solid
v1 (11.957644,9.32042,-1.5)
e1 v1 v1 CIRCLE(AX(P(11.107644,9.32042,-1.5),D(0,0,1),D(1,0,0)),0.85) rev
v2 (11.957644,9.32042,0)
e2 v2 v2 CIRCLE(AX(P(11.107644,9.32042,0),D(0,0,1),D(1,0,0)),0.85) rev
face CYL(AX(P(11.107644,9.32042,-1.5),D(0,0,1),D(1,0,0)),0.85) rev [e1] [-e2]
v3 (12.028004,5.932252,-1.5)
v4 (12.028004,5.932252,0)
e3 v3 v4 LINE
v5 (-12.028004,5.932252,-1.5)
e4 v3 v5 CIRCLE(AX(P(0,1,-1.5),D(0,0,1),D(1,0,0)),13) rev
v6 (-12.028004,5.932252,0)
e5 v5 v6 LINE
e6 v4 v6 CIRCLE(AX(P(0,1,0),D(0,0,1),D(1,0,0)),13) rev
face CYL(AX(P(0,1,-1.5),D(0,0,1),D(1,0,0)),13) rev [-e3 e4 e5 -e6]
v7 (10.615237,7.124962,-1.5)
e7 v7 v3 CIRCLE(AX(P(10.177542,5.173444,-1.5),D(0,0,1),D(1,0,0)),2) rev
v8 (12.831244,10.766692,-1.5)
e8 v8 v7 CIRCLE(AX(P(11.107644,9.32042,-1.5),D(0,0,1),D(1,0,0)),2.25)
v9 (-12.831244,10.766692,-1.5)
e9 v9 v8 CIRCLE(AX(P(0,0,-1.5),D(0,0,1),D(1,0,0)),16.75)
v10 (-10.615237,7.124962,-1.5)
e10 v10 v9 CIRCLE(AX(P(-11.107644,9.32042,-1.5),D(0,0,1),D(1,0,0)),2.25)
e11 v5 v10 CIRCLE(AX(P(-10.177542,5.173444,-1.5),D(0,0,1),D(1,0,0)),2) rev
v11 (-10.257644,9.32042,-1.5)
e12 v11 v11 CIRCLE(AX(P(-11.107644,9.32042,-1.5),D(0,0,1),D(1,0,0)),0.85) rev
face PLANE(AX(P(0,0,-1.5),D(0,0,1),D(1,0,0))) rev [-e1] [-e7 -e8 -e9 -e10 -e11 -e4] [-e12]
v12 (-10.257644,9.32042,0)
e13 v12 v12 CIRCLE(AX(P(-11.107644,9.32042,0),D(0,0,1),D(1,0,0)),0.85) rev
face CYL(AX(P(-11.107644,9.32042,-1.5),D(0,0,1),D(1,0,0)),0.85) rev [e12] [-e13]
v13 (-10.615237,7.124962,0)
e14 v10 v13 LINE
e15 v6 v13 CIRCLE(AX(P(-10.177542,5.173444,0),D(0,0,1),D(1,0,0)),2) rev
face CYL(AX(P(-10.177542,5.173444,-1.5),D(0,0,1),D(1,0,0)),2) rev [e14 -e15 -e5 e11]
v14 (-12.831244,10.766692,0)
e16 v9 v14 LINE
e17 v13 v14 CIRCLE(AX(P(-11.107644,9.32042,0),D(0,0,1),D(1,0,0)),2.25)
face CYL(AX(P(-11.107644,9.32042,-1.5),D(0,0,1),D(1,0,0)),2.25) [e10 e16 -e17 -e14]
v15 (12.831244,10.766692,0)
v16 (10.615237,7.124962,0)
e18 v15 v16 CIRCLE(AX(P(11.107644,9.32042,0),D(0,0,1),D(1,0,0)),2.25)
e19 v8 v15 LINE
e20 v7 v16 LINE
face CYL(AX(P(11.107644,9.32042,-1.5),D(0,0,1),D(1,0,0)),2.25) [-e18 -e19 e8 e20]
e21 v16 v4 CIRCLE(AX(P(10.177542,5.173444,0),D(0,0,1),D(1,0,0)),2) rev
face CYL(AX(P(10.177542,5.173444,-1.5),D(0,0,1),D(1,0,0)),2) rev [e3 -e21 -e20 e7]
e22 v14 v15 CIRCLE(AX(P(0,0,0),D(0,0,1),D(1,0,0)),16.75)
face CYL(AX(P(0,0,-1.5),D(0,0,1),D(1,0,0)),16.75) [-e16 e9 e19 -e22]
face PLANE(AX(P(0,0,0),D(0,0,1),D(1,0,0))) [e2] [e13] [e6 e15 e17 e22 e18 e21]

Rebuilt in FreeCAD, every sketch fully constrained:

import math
import FreeCAD as App
import Part
import Sketcher
Q = App.Units.Quantity

doc = App.newDocument("Part")
body = doc.addObject("PartDesign::Body", "Body")

# Sketch on XY plane
sketch1 = body.newObject("Sketcher::SketchObject", "Sketch")
sketch1.AttachmentSupport = (doc.getObject("XY_Plane"), [""])
sketch1.MapMode = "FlatFace"
sketch1.addGeometry([
    Part.ArcOfCircle(Part.Circle(App.Vector(-10.2, 5.2, 0), App.Vector(0, 0, 1), 2), math.radians(103), math.radians(158)),  # 0
    Part.ArcOfCircle(Part.Circle(App.Vector(-11.1, 9.3, 0), App.Vector(0, 0, 1), 2.2), math.radians(-77), math.radians(140)),  # 1
    Part.ArcOfCircle(Part.Circle(App.Vector(0, 0, 0), App.Vector(0, 0, 1), 16.8), math.radians(140), math.radians(400)),  # 2
    Part.ArcOfCircle(Part.Circle(App.Vector(11.1, 9.3, 0), App.Vector(0, 0, 1), 2.2), math.radians(40), math.radians(257)),  # 3
    Part.ArcOfCircle(Part.Circle(App.Vector(10.2, 5.2, 0), App.Vector(0, 0, 1), 2), math.radians(22), math.radians(77)),  # 4
    Part.ArcOfCircle(Part.Circle(App.Vector(0, 1, 0), App.Vector(0, 0, 1), 13), math.radians(158), math.radians(382)),  # 5
    Part.Circle(App.Vector(-11.1, 9.3, 0), App.Vector(0, 0, 1), 0.8),  # 6
    Part.Circle(App.Vector(11.1, 9.3, 0), App.Vector(0, 0, 1), 0.8),  # 7
], False)
sketch1.addConstraint([
    Sketcher.Constraint("Tangent", 0, 1, 1, 1),
    Sketcher.Constraint("Tangent", 1, 2, 2, 1),
    Sketcher.Constraint("Tangent", 2, 2, 3, 1),
    Sketcher.Constraint("Tangent", 3, 2, 4, 2),
    Sketcher.Constraint("Tangent", 4, 1, 5, 2),
    Sketcher.Constraint("Tangent", 5, 1, 0, 2),
    Sketcher.Constraint("Coincident", 2, 3, -1, 1),
    Sketcher.Constraint("Coincident", 6, 3, 1, 3),
    Sketcher.Constraint("Coincident", 7, 3, 3, 3),
    Sketcher.Constraint("Equal", 1, 3),
    Sketcher.Constraint("Equal", 0, 4),
    Sketcher.Constraint("Equal", 6, 7),
    Sketcher.Constraint("Symmetric", 0, 3, 4, 3, -2),
    Sketcher.Constraint("Radius", 0, Q("2 mm")),
    Sketcher.Constraint("Radius", 5, Q("13 mm")),
    Sketcher.Constraint("Diameter", 6, Q("1.7 mm")),
    Sketcher.Constraint("Radius", 1, Q("2.25 mm")),
    Sketcher.Constraint("Radius", 2, Q("16.75 mm")),
    Sketcher.Constraint("DistanceY", -1, 1, 5, 3, Q("1 mm")),
    Sketcher.Constraint("DistanceX", 1, 2, 1, 3, Q("1.7236 mm")),
])
pad1 = body.newObject("PartDesign::Pad", "Pad")
pad1.Profile = sketch1
pad1.Length = 1.5
pad1.Reversed = True

doc.recompute()
